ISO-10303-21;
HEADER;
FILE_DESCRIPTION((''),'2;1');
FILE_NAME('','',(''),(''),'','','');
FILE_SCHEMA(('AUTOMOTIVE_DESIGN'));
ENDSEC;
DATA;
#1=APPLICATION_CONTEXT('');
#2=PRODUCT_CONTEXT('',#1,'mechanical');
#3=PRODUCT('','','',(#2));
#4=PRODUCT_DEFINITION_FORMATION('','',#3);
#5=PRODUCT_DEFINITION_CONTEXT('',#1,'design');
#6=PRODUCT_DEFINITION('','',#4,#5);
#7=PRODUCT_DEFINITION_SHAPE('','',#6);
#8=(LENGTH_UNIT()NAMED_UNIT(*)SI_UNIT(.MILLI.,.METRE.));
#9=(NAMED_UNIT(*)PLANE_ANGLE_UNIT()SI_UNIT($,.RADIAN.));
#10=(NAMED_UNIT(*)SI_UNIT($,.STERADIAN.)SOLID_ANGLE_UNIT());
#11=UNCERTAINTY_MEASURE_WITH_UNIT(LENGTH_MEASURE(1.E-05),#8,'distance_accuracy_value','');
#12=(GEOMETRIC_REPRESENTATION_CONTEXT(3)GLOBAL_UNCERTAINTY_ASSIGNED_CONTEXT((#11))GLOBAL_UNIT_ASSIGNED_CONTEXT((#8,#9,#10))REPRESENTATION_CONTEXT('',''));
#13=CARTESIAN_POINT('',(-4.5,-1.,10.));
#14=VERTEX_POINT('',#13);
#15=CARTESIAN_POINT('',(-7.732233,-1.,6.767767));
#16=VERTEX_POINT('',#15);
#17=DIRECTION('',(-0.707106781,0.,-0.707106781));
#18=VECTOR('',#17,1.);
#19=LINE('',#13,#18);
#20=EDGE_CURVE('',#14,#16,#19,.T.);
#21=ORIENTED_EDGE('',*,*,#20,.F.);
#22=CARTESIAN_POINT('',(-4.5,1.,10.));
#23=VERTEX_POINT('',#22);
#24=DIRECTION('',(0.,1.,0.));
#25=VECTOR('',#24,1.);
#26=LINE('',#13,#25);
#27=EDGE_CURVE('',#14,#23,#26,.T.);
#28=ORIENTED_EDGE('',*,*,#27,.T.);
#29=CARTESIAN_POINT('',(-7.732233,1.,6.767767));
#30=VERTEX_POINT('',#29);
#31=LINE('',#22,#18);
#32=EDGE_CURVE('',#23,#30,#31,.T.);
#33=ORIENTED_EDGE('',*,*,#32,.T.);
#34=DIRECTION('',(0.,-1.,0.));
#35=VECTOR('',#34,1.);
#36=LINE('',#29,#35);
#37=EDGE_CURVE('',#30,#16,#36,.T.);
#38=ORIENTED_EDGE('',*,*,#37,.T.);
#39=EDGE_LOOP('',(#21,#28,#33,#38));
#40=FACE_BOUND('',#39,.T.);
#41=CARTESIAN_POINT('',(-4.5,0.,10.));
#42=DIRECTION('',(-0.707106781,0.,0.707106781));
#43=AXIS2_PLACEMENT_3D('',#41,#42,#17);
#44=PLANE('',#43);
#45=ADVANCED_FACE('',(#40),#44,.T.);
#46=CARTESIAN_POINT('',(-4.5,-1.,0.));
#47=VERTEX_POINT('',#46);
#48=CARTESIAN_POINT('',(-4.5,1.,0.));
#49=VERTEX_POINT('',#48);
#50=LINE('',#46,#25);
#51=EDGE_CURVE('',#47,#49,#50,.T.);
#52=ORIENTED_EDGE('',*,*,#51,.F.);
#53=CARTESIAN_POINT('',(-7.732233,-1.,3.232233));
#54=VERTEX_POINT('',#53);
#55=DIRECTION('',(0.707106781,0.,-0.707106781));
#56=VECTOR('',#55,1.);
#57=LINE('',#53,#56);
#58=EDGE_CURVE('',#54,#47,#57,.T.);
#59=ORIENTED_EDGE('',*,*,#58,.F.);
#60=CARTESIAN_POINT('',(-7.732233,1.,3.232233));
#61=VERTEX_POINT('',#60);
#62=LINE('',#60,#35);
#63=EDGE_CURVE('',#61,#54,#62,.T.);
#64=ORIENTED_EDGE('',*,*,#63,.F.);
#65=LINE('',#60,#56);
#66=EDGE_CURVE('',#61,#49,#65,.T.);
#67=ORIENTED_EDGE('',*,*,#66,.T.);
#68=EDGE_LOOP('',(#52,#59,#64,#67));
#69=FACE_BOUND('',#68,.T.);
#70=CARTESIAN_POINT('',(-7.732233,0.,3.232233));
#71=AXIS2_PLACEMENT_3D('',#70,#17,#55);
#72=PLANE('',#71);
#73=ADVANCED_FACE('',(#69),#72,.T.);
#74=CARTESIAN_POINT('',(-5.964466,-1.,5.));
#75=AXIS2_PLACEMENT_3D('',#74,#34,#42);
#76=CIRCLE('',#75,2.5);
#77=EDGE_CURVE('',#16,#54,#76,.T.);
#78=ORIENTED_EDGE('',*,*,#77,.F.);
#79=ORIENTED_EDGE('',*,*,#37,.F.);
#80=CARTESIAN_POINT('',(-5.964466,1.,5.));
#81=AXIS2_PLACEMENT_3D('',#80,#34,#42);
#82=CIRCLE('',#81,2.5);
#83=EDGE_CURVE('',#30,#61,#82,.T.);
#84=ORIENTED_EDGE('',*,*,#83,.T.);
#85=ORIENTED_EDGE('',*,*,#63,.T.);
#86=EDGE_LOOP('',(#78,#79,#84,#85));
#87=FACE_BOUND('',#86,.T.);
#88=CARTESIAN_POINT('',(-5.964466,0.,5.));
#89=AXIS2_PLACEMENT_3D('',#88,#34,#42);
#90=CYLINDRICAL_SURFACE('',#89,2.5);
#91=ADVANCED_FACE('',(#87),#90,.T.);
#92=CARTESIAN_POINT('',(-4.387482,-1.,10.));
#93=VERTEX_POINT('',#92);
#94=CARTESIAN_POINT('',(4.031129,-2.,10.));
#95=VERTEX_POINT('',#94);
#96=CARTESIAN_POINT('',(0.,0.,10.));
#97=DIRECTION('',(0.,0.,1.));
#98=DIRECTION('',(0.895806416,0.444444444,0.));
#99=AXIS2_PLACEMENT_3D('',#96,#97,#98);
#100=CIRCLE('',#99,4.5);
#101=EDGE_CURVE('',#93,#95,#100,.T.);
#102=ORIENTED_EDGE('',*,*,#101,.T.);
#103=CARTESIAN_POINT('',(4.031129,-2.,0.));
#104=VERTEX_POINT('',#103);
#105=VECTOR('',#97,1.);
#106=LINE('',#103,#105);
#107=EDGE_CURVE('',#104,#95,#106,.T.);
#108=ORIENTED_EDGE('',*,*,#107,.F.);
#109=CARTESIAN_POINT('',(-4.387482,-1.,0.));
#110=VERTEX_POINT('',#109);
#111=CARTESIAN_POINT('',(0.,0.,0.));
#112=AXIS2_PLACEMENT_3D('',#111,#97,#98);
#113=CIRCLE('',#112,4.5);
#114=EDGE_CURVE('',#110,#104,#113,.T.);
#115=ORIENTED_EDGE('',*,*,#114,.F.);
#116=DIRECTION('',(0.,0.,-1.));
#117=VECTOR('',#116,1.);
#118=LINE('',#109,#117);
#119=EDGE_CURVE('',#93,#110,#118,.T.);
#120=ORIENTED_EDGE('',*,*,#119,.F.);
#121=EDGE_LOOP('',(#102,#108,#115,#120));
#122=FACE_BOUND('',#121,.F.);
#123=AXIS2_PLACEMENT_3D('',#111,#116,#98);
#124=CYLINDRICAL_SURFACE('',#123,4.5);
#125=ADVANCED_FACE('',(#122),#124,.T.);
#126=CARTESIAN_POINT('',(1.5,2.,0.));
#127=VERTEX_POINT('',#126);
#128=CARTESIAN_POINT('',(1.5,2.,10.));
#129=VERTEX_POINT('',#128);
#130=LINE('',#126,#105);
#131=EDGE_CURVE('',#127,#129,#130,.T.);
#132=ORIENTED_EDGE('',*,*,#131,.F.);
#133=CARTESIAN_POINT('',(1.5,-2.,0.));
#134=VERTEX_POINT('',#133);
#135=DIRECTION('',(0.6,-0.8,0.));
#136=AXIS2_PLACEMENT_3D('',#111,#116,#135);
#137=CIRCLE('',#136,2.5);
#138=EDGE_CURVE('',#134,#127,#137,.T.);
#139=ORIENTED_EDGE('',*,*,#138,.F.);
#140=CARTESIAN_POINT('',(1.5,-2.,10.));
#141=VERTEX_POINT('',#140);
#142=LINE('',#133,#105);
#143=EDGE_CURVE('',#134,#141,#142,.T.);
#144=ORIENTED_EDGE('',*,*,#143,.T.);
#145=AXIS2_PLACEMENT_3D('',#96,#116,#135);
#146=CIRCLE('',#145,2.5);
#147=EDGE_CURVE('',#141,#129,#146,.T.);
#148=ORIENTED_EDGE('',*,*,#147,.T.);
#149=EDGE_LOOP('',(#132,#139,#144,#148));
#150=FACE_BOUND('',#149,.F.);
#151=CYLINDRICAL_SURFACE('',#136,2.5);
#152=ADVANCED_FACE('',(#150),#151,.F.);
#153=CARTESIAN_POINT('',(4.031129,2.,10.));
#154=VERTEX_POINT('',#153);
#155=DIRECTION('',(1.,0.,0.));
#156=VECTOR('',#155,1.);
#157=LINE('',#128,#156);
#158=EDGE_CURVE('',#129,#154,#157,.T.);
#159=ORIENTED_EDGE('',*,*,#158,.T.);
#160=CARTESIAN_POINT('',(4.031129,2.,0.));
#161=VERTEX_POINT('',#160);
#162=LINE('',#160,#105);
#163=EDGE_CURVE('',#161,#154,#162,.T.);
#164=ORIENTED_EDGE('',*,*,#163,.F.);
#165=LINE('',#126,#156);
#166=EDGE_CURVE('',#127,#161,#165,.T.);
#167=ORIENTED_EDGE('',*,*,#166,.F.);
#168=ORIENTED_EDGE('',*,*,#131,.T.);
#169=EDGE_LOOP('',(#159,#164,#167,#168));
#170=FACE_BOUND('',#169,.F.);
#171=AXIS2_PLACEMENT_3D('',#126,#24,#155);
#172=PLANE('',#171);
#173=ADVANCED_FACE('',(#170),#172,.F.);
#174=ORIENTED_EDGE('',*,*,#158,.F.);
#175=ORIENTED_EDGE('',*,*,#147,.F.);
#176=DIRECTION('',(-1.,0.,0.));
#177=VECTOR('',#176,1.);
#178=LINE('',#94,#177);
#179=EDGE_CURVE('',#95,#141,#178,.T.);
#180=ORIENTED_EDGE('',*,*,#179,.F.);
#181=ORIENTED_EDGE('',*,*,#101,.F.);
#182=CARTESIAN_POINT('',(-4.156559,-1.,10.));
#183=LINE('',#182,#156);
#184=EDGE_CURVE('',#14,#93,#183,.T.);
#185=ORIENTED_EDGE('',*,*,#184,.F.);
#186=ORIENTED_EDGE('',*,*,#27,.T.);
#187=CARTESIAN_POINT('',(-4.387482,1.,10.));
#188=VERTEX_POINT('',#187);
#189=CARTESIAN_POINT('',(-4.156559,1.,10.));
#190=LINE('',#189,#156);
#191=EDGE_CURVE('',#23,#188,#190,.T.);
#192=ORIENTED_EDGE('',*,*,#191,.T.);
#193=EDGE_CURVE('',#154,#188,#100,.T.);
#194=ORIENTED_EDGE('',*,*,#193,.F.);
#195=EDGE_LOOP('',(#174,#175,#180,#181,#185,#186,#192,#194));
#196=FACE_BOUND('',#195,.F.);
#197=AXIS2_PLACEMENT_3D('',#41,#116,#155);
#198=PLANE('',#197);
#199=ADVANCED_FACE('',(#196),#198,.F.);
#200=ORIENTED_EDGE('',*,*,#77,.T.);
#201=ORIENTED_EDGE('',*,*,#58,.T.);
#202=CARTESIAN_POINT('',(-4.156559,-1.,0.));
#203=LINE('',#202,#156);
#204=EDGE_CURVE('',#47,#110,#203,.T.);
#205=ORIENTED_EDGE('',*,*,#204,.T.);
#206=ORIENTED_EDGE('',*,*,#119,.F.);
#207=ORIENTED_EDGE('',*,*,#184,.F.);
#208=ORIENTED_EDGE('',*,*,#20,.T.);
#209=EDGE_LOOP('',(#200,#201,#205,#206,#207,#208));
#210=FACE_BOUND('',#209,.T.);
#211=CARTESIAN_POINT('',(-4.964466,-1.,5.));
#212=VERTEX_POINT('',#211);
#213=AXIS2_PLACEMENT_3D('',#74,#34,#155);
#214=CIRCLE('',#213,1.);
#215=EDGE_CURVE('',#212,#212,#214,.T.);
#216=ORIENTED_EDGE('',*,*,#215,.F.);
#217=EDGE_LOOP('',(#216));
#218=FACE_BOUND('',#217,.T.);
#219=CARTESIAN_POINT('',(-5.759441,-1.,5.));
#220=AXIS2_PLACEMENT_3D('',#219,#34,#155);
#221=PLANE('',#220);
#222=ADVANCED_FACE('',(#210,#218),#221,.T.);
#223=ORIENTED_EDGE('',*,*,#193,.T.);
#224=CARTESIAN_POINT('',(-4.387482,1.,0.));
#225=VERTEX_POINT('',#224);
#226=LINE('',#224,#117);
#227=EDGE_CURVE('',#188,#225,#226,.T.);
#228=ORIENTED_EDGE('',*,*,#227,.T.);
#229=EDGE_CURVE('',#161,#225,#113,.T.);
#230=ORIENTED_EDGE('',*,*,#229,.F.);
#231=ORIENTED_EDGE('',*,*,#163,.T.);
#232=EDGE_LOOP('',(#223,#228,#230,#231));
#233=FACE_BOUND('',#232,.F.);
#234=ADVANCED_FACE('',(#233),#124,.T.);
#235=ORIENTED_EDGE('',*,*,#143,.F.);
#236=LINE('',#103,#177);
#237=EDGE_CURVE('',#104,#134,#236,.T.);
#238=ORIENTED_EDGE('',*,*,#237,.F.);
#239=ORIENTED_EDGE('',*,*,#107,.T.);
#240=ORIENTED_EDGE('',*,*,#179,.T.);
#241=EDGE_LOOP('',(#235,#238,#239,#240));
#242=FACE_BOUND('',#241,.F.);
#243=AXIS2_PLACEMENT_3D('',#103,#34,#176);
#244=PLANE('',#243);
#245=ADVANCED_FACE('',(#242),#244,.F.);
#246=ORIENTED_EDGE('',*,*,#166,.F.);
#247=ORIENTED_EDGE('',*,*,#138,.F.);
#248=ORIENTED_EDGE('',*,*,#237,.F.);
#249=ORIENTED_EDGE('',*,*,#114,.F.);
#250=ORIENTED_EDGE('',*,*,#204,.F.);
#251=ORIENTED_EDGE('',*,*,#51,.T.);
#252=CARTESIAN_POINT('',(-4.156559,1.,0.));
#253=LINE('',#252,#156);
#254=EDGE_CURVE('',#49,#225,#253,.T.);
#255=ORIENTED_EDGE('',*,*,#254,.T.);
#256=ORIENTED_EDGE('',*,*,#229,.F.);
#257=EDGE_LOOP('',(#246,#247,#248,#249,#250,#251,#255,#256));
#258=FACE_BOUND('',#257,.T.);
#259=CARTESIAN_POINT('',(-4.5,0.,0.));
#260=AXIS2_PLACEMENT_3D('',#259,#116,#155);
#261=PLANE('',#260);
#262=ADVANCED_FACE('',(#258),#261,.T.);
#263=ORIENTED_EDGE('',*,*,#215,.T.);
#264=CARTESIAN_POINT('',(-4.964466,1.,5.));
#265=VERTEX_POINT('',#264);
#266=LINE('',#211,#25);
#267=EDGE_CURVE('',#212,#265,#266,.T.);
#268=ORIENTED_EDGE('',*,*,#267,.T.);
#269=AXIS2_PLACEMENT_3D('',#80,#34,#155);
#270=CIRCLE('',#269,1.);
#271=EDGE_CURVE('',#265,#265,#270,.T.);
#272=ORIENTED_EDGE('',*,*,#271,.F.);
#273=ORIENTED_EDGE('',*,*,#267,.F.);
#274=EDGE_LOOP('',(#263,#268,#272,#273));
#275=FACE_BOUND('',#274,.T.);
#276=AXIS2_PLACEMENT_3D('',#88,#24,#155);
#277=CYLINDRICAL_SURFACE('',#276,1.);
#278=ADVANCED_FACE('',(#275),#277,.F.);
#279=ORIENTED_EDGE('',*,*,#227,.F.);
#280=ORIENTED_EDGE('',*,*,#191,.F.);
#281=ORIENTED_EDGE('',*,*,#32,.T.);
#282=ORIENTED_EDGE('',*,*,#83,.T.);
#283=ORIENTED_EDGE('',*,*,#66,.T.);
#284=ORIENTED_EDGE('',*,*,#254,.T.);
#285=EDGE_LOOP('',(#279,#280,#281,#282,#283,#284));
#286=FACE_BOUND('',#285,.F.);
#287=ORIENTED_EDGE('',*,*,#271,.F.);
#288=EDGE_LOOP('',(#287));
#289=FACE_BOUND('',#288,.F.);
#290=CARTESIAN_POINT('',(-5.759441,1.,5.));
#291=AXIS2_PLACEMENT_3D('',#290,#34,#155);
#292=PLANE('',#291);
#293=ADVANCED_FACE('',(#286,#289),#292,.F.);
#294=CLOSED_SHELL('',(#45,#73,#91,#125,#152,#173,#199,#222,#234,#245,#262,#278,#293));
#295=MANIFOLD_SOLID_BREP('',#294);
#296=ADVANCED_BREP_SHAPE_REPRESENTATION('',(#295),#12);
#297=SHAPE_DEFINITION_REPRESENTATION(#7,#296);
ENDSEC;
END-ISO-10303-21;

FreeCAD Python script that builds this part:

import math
import FreeCAD as App
import Part
import Sketcher
from FreeCAD import Vector

doc = App.newDocument("Part")
body = doc.addObject("PartDesign::Body", "Body")

# Sketch on XY plane
sketch1 = doc.addObject("Sketcher::SketchObject", "Sketch")
body.addObject(sketch1)
sketch1.AttachmentSupport = (doc.XY_Plane, [""])
sketch1.MapMode = "FlatFace"
sketch1.addGeometry([
    Part.LineSegment(Vector(1.5, 2, 0), Vector(4, 2, 0)),
    Part.ArcOfCircle(Part.Circle(Vector(0, 0, 0), Vector(0, 0, 1), 4.5), math.radians(26), math.radians(334)),
    Part.LineSegment(Vector(4, -2, 0), Vector(1.5, -2, 0)),
    Part.ArcOfCircle(Part.Circle(Vector(0, 0, 0), Vector(0, 0, 1), 2.5), math.radians(53), math.radians(307)),
], False)
sketch1.addConstraint([
    Sketcher.Constraint("Coincident", 0, 2, 1, 1),
    Sketcher.Constraint("Coincident", 1, 2, 2, 1),
    Sketcher.Constraint("Coincident", 2, 2, 3, 2),
    Sketcher.Constraint("Coincident", 3, 1, 0, 1),
    Sketcher.Constraint("Horizontal", 0),
    Sketcher.Constraint("Horizontal", 2),
    Sketcher.Constraint("Coincident", 1, 3, -1, 1),
    Sketcher.Constraint("Coincident", 3, 3, -1, 1),
    Sketcher.Constraint("Vertical", 0, 2, 1, 2),
    Sketcher.Constraint("Radius", 1, 4.5),
    Sketcher.Constraint("Radius", 3, 2.5),
    Sketcher.Constraint("DistanceY", -1, 1, 0, 2, 2.0),
])
pad1 = doc.addObject("PartDesign::Pad", "Pad")
body.addObject(pad1)
pad1.Profile = sketch1
pad1.Length = 10

# Sketch on XZ plane
sketch2 = doc.addObject("Sketcher::SketchObject", "Sketch001")
body.addObject(sketch2)
sketch2.AttachmentSupport = (doc.XZ_Plane, [""])
sketch2.MapMode = "FlatFace"
sketch2.addGeometry([
    Part.LineSegment(Vector(-4.5, 10, 0), Vector(-7.7, 6.8, 0)),  # 0
    Part.ArcOfCircle(Part.Circle(Vector(-6, 5, 0), Vector(0, 0, 1), 2.5), math.radians(135), math.radians(225)),  # 1
    Part.LineSegment(Vector(-7.7, 3.2, 0), Vector(-4.5, 0, 0)),  # 2
    Part.LineSegment(Vector(-4.5, 0, 0), Vector(-3.8, 0, 0)),  # 3
    Part.LineSegment(Vector(-3.8, 0, 0), Vector(-3.8, 10, 0)),  # 4
    Part.LineSegment(Vector(-3.8, 10, 0), Vector(-4.5, 10, 0)),  # 5
    Part.Circle(Vector(-6, 5, 0), Vector(0, 0, 1), 1),  # 6
], False)
sketch2.addConstraint([
    Sketcher.Constraint("Tangent", 0, 2, 1, 1),
    Sketcher.Constraint("Tangent", 1, 2, 2, 1),
    Sketcher.Constraint("Coincident", 2, 2, 3, 1),
    Sketcher.Constraint("Coincident", 3, 2, 4, 1),
    Sketcher.Constraint("Coincident", 4, 2, 5, 1),
    Sketcher.Constraint("Coincident", 5, 2, 0, 1),
    Sketcher.Constraint("Horizontal", 3),
    Sketcher.Constraint("Vertical", 4),
    Sketcher.Constraint("Horizontal", 5),
    Sketcher.Constraint("Coincident", 6, 3, 1, 3),
    Sketcher.Constraint("PointOnObject", 2, 2, -1),
    Sketcher.Constraint("Perpendicular", 0, 2),
    Sketcher.Constraint("Vertical", 0, 2, 1, 2),
    Sketcher.Constraint("Vertical", 2, 2, 5, 2),
    Sketcher.Constraint("Diameter", 6, 2.0),
    Sketcher.Constraint("Radius", 1, 2.5),
    Sketcher.Constraint("DistanceY", 4, 1, 4, 2, 10.0),
    Sketcher.Constraint("DistanceX", 2, 2, -1, 1, 4.5),
    Sketcher.Constraint("DistanceX", 3, 1, 3, 2, 0.686882),
])
pad2 = doc.addObject("PartDesign::Pad", "Pad001")
body.addObject(pad2)
pad2.Profile = sketch2
pad2.Length = 2
pad2.Midplane = True

doc.recompute()
